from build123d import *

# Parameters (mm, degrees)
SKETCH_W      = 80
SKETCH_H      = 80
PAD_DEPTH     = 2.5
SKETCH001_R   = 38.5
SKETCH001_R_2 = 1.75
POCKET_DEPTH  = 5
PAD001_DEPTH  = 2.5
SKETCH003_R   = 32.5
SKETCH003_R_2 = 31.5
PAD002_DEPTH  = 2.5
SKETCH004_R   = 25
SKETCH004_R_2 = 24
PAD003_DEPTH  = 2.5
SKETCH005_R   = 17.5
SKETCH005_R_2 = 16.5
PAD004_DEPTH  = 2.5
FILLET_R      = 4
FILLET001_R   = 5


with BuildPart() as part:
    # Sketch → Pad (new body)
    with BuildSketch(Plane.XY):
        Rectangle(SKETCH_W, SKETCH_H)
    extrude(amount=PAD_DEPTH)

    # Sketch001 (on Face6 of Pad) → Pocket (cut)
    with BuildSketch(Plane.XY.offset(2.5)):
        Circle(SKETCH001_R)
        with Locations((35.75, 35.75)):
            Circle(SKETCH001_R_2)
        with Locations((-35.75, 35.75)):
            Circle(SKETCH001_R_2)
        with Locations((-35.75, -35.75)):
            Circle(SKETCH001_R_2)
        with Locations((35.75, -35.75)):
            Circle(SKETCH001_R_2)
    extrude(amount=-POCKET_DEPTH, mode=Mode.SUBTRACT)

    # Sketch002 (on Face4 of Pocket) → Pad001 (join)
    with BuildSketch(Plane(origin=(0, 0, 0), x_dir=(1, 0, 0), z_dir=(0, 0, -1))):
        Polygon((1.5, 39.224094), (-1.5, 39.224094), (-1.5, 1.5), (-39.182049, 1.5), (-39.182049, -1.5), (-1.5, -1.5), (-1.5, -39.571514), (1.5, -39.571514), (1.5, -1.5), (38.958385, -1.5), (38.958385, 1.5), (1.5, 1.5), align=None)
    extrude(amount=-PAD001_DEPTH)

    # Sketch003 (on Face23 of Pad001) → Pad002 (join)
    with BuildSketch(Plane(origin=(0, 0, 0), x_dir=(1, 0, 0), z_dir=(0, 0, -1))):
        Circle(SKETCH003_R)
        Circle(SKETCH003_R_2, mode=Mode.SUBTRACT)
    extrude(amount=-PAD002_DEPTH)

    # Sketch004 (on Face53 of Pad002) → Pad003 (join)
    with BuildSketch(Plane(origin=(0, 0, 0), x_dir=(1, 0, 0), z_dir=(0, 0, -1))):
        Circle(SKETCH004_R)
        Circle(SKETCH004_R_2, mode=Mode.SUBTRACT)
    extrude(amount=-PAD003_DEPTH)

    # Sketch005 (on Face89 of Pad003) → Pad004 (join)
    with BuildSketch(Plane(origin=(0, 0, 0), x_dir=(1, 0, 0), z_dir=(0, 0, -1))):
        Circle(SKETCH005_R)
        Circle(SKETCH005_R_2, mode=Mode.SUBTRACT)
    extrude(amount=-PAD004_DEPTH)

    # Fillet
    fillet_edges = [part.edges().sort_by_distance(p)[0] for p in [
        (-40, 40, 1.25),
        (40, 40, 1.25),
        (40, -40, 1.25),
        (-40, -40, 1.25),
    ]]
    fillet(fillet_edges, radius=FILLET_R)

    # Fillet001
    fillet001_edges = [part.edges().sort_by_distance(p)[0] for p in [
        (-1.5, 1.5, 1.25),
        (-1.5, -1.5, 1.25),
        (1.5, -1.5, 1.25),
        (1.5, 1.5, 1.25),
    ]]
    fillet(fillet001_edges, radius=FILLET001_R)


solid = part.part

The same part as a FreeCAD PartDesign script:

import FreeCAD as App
import Part
import Sketcher
from FreeCAD import Vector


def edges_at(feature, points):
    """Names of the edges that pass closest to the given points."""
    edges = feature.Shape.Edges
    near = lambda p: min(range(len(edges)), key=lambda i: edges[i].distToShape(Part.Vertex(*p))[0])
    return sorted({f"Edge{near(p) + 1}" for p in points})

doc = App.newDocument("Part")
body = doc.addObject("PartDesign::Body", "Body")

sketch1 = doc.addObject("Sketcher::SketchObject", "Sketch")
body.addObject(sketch1)
sketch1.AttachmentSupport = (doc.XY_Plane, [""])
sketch1.MapMode = "FlatFace"
sketch1.addGeometry([
    Part.LineSegment(Vector(-40, 40, 0), Vector(-40, -40, 0)),
    Part.LineSegment(Vector(-40, -40, 0), Vector(40, -40, 0)),
    Part.LineSegment(Vector(40, -40, 0), Vector(40, 40, 0)),
    Part.LineSegment(Vector(40, 40, 0), Vector(-40, 40, 0)),
], False)
sketch1.addConstraint([
    Sketcher.Constraint("Coincident", 0, 2, 1, 1),
    Sketcher.Constraint("Coincident", 1, 2, 2, 1),
    Sketcher.Constraint("Coincident", 2, 2, 3, 1),
    Sketcher.Constraint("Coincident", 3, 2, 0, 1),
    Sketcher.Constraint("Vertical", 0),
    Sketcher.Constraint("Horizontal", 1),
    Sketcher.Constraint("Vertical", 2),
    Sketcher.Constraint("Horizontal", 3),
    Sketcher.Constraint("Symmetric", 0, 2, 2, 2, -1, 1),
    Sketcher.Constraint("Equal", 3, 0),
    Sketcher.Constraint("DistanceX", 1, 1, 1, 2, 80.0),
])
pad1 = doc.addObject("PartDesign::Pad", "Pad")
body.addObject(pad1)
pad1.Profile = sketch1
pad1.Length = 2.5

sketch2 = doc.addObject("Sketcher::SketchObject", "Sketch001")
body.addObject(sketch2)
sketch2.AttachmentSupport = (doc.XY_Plane, [""])
sketch2.MapMode = "FlatFace"
sketch2.AttachmentOffset = App.Placement(Vector(0, 0, 2.5), App.Rotation())
sketch2.addGeometry([
    Part.Circle(Vector(0, 0, 0), Vector(0, 0, 1), 38.5),
    Part.Circle(Vector(35.8, 35.8, 0), Vector(0, 0, 1), 1.8),
    Part.Circle(Vector(-35.8, 35.8, 0), Vector(0, 0, 1), 1.8),
    Part.Circle(Vector(-35.8, -35.8, 0), Vector(0, 0, 1), 1.8),
    Part.Circle(Vector(35.8, -35.8, 0), Vector(0, 0, 1), 1.8),
], False)
sketch2.addConstraint([
    Sketcher.Constraint("Coincident", 0, 3, -1, 1),
    Sketcher.Constraint("Equal", 1, 2),
    Sketcher.Constraint("Equal", 2, 3),
    Sketcher.Constraint("Equal", 3, 4),
    Sketcher.Constraint("Symmetric", 1, 3, 3, 3, -1, 1),
    Sketcher.Constraint("Symmetric", 2, 3, 4, 3, -1, 1),
    Sketcher.Constraint("Symmetric", 1, 3, 2, 3, -2),
    Sketcher.Constraint("Diameter", 0, 77.0),
    Sketcher.Constraint("Diameter", 1, 3.5),
    Sketcher.Constraint("DistanceX", 2, 3, 1, 3, 71.5),
    Sketcher.Constraint("DistanceY", 3, 3, 2, 3, 71.5),
])
pocket1 = doc.addObject("PartDesign::Pocket", "Pocket")
body.addObject(pocket1)
pocket1.Profile = sketch2
pocket1.Length = 5

sketch3 = doc.addObject("Sketcher::SketchObject", "Sketch002")
body.addObject(sketch3)
sketch3.AttachmentSupport = (doc.XY_Plane, [""])
sketch3.MapMode = "FlatFace"
sketch3.addGeometry([
    Part.LineSegment(Vector(1.5, -39.2, 0), Vector(-1.5, -39.2, 0)),
    Part.LineSegment(Vector(-1.5, -39.2, 0), Vector(-1.5, -1.5, 0)),
    Part.LineSegment(Vector(-1.5, -1.5, 0), Vector(-39.2, -1.5, 0)),
    Part.LineSegment(Vector(-39.2, -1.5, 0), Vector(-39.2, 1.5, 0)),
    Part.LineSegment(Vector(-39.2, 1.5, 0), Vector(-1.5, 1.5, 0)),
    Part.LineSegment(Vector(-1.5, 1.5, 0), Vector(-1.5, 39.6, 0)),
    Part.LineSegment(Vector(-1.5, 39.6, 0), Vector(1.5, 39.6, 0)),
    Part.LineSegment(Vector(1.5, 39.6, 0), Vector(1.5, 1.5, 0)),
    Part.LineSegment(Vector(1.5, 1.5, 0), Vector(39, 1.5, 0)),
    Part.LineSegment(Vector(39, 1.5, 0), Vector(39, -1.5, 0)),
    Part.LineSegment(Vector(39, -1.5, 0), Vector(1.5, -1.5, 0)),
    Part.LineSegment(Vector(1.5, -1.5, 0), Vector(1.5, -39.2, 0)),
], False)
sketch3.addConstraint([
    Sketcher.Constraint("Coincident", 0, 2, 1, 1),
    Sketcher.Constraint("Coincident", 1, 2, 2, 1),
    Sketcher.Constraint("Coincident", 2, 2, 3, 1),
    Sketcher.Constraint("Coincident", 3, 2, 4, 1),
    Sketcher.Constraint("Coincident", 4, 2, 5, 1),
    Sketcher.Constraint("Coincident", 5, 2, 6, 1),
    Sketcher.Constraint("Coincident", 6, 2, 7, 1),
    Sketcher.Constraint("Coincident", 7, 2, 8, 1),
    Sketcher.Constraint("Coincident", 8, 2, 9, 1),
    Sketcher.Constraint("Coincident", 9, 2, 10, 1),
    Sketcher.Constraint("Coincident", 10, 2, 11, 1),
    Sketcher.Constraint("Coincident", 11, 2, 0, 1),
    Sketcher.Constraint("Horizontal", 0),
    Sketcher.Constraint("Vertical", 1),
    Sketcher.Constraint("Horizontal", 2),
    Sketcher.Constraint("Vertical", 3),
    Sketcher.Constraint("Horizontal", 4),
    Sketcher.Constraint("Vertical", 5),
    Sketcher.Constraint("Horizontal", 6),
    Sketcher.Constraint("Vertical", 7),
    Sketcher.Constraint("Horizontal", 8),
    Sketcher.Constraint("Vertical", 9),
    Sketcher.Constraint("Horizontal", 10),
    Sketcher.Constraint("Vertical", 11),
    Sketcher.Constraint("Symmetric", 1, 2, 7, 2, -1, 1),
    Sketcher.Constraint("Symmetric", 4, 2, 10, 2, -1, 1),
    Sketcher.Constraint("Symmetric", 4, 2, 7, 2, -2),
    Sketcher.Constraint("Equal", 6, 3),
    Sketcher.Constraint("DistanceX", 0, 2, 0, 1, 3.0),
    Sketcher.Constraint("DistanceX", 2, 2, 2, 1, 37.682049),
    Sketcher.Constraint("DistanceX", 8, 1, 8, 2, 37.458385),
    Sketcher.Constraint("DistanceY", 1, 1, 1, 2, 37.724094),
    Sketcher.Constraint("DistanceY", 5, 1, 5, 2, 38.071514),
])
pad2 = doc.addObject("PartDesign::Pad", "Pad001")
body.addObject(pad2)
pad2.Profile = sketch3
pad2.Length = 2.5

sketch4 = doc.addObject("Sketcher::SketchObject", "Sketch003")
body.addObject(sketch4)
sketch4.AttachmentSupport = (doc.XY_Plane, [""])
sketch4.MapMode = "FlatFace"
sketch4.addGeometry([
    Part.Circle(Vector(0, 0, 0), Vector(0, 0, 1), 32),
    Part.Circle(Vector(0, 0, 0), Vector(0, 0, 1), 32),
], False)
sketch4.addConstraint([
    Sketcher.Constraint("Coincident", 0, 3, -1, 1),
    Sketcher.Constraint("Coincident", 1, 3, -1, 1),
    Sketcher.Constraint("Diameter", 0, 65.0),
    Sketcher.Constraint("Diameter", 1, 63.0),
])
pad3 = doc.addObject("PartDesign::Pad", "Pad002")
body.addObject(pad3)
pad3.Profile = sketch4
pad3.Length = 2.5

sketch5 = doc.addObject("Sketcher::SketchObject", "Sketch004")
body.addObject(sketch5)
sketch5.AttachmentSupport = (doc.XY_Plane, [""])
sketch5.MapMode = "FlatFace"
sketch5.addGeometry([
    Part.Circle(Vector(0, 0, 0), Vector(0, 0, 1), 25),
    Part.Circle(Vector(0, 0, 0), Vector(0, 0, 1), 24),
], False)
sketch5.addConstraint([
    Sketcher.Constraint("Coincident", 0, 3, -1, 1),
    Sketcher.Constraint("Coincident", 1, 3, -1, 1),
    Sketcher.Constraint("Diameter", 0, 50.0),
    Sketcher.Constraint("Diameter", 1, 48.0),
])
pad4 = doc.addObject("PartDesign::Pad", "Pad003")
body.addObject(pad4)
pad4.Profile = sketch5
pad4.Length = 2.5

sketch6 = doc.addObject("Sketcher::SketchObject", "Sketch005")
body.addObject(sketch6)
sketch6.AttachmentSupport = (doc.XY_Plane, [""])
sketch6.MapMode = "FlatFace"
sketch6.addGeometry([
    Part.Circle(Vector(0, 0, 0), Vector(0, 0, 1), 18),
    Part.Circle(Vector(0, 0, 0), Vector(0, 0, 1), 16),
], False)
sketch6.addConstraint([
    Sketcher.Constraint("Coincident", 0, 3, -1, 1),
    Sketcher.Constraint("Coincident", 1, 3, -1, 1),
    Sketcher.Constraint("Diameter", 0, 35.0),
    Sketcher.Constraint("Diameter", 1, 33.0),
])
pad5 = doc.addObject("PartDesign::Pad", "Pad004")
body.addObject(pad5)
pad5.Profile = sketch6
pad5.Length = 2.5
doc.recompute()

fillet = doc.addObject("PartDesign::Fillet", "Fillet")
body.addObject(fillet)
fillet.Base = (pad5, edges_at(pad5, [
    (-40, 40, 1.25),
    (40, 40, 1.25),
    (40, -40, 1.25),
    (-40, -40, 1.25),
]))
fillet.Radius = 4
doc.recompute()

fillet2 = doc.addObject("PartDesign::Fillet", "Fillet001")
body.addObject(fillet2)
fillet2.Base = (fillet, edges_at(fillet, [
    (-1.5, 1.5, 1.25),
    (-1.5, -1.5, 1.25),
    (1.5, -1.5, 1.25),
    (1.5, 1.5, 1.25),
]))
fillet2.Radius = 5

doc.recompute()
